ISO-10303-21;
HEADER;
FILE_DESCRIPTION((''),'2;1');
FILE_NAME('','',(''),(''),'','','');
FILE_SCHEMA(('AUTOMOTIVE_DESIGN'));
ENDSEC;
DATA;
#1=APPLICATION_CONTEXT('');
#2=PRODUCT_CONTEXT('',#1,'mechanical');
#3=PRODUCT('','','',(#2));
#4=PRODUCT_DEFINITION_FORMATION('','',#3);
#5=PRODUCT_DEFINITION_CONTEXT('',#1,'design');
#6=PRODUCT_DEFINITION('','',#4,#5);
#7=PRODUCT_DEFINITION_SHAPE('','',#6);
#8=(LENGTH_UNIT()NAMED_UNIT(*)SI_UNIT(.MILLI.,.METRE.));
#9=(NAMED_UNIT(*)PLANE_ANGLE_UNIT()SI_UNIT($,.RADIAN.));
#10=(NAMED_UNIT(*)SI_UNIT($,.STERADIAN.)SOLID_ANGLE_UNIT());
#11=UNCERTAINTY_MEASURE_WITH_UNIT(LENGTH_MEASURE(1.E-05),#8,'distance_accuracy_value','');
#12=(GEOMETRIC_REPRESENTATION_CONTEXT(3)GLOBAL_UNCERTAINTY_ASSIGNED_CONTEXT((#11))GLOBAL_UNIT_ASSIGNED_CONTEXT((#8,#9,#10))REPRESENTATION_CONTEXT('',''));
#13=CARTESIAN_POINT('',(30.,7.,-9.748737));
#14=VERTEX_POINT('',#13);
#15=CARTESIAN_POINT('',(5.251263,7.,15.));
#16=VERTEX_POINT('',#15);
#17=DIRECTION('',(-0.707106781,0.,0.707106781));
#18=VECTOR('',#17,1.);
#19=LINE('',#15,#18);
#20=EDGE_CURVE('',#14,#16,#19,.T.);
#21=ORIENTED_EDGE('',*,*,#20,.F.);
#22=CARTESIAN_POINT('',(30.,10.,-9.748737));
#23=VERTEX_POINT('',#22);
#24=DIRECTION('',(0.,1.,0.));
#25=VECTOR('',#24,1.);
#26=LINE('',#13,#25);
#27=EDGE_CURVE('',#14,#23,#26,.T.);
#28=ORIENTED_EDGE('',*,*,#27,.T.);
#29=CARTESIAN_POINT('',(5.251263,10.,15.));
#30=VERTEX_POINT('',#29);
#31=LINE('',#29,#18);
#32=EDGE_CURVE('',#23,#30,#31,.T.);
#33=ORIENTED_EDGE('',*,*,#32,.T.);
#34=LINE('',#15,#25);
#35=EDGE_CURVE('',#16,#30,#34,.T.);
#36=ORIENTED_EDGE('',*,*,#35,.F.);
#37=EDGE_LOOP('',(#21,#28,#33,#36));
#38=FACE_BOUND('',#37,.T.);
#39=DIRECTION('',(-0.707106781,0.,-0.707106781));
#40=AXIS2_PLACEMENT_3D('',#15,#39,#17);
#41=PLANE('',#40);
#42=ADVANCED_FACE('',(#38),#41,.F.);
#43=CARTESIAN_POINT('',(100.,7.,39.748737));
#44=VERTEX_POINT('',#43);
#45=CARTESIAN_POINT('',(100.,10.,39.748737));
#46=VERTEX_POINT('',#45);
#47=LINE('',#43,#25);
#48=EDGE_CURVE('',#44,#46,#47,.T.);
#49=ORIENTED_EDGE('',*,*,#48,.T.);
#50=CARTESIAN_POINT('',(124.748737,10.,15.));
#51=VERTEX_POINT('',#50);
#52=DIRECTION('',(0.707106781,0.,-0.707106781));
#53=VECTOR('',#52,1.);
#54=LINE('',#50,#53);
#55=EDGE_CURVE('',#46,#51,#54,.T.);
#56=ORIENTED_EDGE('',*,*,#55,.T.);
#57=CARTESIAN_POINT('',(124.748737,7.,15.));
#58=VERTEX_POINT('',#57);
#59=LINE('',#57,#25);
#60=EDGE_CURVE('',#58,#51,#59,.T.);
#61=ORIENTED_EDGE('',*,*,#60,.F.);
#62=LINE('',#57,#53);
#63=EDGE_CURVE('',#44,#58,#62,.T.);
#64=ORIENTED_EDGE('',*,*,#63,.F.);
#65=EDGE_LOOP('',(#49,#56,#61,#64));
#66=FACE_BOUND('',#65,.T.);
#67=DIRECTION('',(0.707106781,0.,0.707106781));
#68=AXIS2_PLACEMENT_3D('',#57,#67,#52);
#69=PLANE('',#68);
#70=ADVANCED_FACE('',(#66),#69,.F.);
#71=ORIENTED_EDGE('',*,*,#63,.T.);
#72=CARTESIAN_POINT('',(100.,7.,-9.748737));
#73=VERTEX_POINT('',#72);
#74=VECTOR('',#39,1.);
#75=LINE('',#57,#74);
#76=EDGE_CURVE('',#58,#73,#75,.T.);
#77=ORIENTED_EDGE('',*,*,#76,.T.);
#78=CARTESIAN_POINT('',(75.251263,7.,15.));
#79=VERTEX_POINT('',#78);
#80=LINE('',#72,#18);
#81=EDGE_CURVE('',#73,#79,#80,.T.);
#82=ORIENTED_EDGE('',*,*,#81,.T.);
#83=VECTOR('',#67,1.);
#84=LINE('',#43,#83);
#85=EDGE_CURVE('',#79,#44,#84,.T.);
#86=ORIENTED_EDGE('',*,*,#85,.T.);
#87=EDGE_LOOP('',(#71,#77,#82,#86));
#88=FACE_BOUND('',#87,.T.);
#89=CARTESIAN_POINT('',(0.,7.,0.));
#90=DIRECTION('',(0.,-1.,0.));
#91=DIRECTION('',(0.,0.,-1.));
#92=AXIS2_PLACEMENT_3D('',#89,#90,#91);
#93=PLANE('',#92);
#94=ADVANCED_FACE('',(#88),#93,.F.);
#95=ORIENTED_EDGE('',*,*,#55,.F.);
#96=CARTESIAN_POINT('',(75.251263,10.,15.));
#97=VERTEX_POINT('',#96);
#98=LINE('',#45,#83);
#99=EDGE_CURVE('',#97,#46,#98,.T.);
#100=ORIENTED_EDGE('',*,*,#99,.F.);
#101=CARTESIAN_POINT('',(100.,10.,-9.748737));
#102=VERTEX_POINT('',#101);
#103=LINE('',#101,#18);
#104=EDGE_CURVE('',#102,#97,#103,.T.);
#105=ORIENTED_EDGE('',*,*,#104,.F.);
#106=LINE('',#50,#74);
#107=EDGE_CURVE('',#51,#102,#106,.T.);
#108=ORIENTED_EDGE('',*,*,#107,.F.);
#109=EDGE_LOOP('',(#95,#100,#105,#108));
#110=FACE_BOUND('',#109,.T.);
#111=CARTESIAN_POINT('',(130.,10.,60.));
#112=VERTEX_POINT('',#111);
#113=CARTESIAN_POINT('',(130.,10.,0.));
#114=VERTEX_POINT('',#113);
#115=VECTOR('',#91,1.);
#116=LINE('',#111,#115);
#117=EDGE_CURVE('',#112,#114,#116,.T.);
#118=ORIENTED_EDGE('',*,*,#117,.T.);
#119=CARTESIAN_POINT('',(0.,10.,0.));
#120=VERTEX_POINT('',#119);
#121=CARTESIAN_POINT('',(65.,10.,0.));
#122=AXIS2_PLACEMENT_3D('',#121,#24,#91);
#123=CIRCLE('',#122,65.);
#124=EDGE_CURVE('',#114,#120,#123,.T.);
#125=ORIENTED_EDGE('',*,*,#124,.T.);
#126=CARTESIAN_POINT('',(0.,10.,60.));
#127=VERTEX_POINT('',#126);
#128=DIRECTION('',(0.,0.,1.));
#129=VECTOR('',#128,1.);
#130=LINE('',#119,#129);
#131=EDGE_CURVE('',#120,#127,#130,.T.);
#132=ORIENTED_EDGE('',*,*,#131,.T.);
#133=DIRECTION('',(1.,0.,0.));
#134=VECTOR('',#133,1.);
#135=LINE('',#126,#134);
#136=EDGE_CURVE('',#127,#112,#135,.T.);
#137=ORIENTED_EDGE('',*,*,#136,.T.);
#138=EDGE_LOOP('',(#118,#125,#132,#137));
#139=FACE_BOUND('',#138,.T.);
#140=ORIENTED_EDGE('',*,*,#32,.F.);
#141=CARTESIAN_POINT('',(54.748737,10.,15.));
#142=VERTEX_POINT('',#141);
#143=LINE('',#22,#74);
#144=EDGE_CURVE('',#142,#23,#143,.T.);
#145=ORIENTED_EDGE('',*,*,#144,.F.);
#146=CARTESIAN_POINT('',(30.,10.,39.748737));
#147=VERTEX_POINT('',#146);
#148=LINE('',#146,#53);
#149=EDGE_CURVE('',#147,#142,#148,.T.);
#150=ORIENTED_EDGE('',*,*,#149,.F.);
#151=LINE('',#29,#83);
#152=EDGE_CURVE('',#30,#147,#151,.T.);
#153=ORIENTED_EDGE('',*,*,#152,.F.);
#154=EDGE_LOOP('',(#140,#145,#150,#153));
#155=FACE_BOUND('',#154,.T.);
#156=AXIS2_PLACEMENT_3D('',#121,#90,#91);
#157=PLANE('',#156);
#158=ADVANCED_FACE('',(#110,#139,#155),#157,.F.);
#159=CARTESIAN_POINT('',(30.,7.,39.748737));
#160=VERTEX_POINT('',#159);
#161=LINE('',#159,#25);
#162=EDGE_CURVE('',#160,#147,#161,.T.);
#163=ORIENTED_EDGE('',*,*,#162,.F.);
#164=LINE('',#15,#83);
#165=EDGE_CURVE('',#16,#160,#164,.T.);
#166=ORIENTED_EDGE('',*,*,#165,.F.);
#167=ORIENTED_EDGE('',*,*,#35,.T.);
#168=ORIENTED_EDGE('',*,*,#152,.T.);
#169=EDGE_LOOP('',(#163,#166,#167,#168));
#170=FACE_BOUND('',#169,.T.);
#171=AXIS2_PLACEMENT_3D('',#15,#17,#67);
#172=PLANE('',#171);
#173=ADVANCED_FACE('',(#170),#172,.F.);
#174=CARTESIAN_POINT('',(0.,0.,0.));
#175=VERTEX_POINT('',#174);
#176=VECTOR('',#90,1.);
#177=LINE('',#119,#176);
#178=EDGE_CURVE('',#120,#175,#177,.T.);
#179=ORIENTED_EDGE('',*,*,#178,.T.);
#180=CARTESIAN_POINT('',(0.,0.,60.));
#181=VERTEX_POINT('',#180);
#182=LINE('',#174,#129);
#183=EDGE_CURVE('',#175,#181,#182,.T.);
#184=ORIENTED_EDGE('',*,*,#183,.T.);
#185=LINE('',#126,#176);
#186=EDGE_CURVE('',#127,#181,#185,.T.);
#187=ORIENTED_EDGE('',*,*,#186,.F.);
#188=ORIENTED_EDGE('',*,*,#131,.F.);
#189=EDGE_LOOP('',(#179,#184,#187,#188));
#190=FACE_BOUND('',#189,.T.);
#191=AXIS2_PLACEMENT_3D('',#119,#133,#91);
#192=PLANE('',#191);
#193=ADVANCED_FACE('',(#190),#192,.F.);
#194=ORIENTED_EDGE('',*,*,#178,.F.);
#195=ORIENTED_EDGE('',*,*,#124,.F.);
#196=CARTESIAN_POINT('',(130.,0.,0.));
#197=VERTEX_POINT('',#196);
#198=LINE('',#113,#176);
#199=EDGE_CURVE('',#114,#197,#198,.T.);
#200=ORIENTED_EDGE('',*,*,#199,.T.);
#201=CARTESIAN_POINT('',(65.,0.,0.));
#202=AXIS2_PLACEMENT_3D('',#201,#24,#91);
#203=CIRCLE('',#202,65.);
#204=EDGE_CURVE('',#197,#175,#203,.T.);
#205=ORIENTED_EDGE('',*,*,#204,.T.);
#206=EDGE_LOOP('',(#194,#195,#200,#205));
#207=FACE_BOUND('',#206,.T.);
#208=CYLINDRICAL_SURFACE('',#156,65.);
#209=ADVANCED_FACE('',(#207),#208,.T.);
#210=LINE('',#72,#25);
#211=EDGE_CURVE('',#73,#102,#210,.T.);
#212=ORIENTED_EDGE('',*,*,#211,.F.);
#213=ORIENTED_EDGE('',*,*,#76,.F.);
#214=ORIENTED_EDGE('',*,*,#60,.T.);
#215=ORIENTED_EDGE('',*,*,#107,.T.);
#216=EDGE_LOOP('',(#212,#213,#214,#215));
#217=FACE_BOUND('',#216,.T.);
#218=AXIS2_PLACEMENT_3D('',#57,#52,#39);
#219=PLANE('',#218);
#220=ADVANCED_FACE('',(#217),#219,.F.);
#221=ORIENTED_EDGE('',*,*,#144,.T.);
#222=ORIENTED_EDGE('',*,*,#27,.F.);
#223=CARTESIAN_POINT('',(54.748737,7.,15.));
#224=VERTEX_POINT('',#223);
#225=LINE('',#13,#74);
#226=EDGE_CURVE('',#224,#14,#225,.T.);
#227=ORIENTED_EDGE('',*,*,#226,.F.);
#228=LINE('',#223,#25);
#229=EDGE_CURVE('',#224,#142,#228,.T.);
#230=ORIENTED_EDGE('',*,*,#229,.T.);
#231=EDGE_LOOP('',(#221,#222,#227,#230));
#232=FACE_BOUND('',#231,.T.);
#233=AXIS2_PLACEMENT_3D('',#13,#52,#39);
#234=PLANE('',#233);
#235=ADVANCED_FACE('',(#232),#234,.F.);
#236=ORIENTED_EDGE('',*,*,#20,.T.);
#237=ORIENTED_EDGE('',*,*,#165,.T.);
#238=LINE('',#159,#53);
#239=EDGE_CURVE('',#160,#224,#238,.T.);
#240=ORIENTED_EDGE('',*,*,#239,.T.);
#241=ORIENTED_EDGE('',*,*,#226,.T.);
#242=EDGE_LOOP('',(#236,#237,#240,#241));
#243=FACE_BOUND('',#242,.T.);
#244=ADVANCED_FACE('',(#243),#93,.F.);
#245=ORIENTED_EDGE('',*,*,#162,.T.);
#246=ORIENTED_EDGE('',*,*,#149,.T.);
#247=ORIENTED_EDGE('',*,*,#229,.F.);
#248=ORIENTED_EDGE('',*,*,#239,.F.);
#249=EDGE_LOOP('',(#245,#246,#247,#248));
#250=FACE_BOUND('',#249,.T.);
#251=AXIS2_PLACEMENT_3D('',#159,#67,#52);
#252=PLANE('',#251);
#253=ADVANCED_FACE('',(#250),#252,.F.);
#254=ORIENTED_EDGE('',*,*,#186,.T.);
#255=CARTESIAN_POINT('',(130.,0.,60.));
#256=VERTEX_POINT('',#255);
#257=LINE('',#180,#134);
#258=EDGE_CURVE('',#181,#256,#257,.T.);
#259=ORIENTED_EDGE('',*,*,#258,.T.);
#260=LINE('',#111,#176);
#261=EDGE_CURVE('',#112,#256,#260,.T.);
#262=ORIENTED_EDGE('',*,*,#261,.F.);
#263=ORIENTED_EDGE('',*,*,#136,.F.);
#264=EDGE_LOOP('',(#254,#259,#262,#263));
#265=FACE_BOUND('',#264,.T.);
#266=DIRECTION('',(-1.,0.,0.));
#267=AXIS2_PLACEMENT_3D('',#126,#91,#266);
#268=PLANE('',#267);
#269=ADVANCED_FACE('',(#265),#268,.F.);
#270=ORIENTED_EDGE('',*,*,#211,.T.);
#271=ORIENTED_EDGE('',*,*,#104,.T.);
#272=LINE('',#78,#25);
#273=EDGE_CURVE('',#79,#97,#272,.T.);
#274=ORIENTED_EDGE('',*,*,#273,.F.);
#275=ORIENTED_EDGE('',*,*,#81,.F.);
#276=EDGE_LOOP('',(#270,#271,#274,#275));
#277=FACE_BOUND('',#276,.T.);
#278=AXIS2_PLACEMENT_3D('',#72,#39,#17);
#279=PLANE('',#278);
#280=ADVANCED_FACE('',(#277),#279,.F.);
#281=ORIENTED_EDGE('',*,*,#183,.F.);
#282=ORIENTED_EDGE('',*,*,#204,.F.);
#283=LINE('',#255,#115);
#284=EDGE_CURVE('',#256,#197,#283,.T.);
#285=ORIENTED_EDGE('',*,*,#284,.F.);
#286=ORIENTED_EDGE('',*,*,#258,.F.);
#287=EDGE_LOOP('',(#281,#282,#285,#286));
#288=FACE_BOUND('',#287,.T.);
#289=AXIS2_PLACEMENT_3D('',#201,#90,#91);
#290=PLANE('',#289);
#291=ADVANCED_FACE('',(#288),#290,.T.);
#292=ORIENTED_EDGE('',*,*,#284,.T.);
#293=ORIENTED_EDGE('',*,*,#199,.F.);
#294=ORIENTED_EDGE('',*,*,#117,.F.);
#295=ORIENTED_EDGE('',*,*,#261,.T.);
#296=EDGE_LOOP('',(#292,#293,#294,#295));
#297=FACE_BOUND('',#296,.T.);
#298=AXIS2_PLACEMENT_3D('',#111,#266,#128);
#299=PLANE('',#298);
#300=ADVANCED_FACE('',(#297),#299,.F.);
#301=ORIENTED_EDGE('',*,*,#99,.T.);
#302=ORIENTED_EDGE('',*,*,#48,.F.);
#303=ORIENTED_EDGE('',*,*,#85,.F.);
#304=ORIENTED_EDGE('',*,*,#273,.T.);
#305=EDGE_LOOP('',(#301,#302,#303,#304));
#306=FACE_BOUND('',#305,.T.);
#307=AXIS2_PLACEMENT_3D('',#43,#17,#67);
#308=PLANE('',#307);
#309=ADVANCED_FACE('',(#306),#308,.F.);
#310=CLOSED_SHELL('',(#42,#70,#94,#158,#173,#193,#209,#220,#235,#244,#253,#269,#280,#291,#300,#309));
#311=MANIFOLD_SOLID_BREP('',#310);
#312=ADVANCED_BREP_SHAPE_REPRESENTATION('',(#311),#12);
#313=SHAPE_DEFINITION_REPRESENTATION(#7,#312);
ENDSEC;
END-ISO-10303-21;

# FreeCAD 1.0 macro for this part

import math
import FreeCAD as App
import Part
import Sketcher
Q = App.Units.Quantity

doc = App.newDocument("Part")
body = doc.addObject("PartDesign::Body", "Body")

# Sketch on XZ plane
sketch1 = body.newObject("Sketcher::SketchObject", "Sketch")
sketch1.AttachmentSupport = (doc.getObject("XZ_Plane"), [""])
sketch1.MapMode = "FlatFace"
sketch1.addGeometry([
    Part.LineSegment(App.Vector(0, 0, 0), App.Vector(0, 60, 0)),
    Part.LineSegment(App.Vector(0, 60, 0), App.Vector(130, 60, 0)),
    Part.LineSegment(App.Vector(130, 60, 0), App.Vector(130, 0, 0)),
    Part.ArcOfCircle(Part.Circle(App.Vector(65, 0, 0), App.Vector(0, 0, 1), 65), math.radians(180), math.radians(360)),
], False)
sketch1.addConstraint([
    Sketcher.Constraint("Coincident", 0, 2, 1, 1),
    Sketcher.Constraint("Coincident", 1, 2, 2, 1),
    Sketcher.Constraint("Tangent", 2, 2, 3, 2),
    Sketcher.Constraint("Tangent", 3, 1, 0, 1),
    Sketcher.Constraint("Vertical", 0),
    Sketcher.Constraint("Horizontal", 1),
    Sketcher.Constraint("Vertical", 2),
    Sketcher.Constraint("Coincident", 3, 1, -1, 1),
    Sketcher.Constraint("Radius", 3, Q("65 mm")),
    Sketcher.Constraint("DistanceY", 0, 1, 0, 2, Q("60 mm")),
])
pad1 = body.newObject("PartDesign::Pad", "Pad")
pad1.Profile = sketch1
pad1.Length = 10
pad1.Reversed = True

# Sketch on XZ plane
sketch2 = body.newObject("Sketcher::SketchObject", "Sketch001")
sketch2.AttachmentSupport = (doc.getObject("XZ_Plane"), [""])
sketch2.MapMode = "FlatFace"
sketch2.AttachmentOffset = App.Placement(App.Vector(0, 0, -10), App.Rotation())
sketch2.addGeometry([
    Part.LineSegment(App.Vector(5.251263, 15, 0), App.Vector(30, 39.748737, 0)),  # 0
    Part.LineSegment(App.Vector(30, 39.748737, 0), App.Vector(54.748737, 15, 0)),  # 1
    Part.LineSegment(App.Vector(54.748737, 15, 0), App.Vector(30, -9.748737, 0)),  # 2
    Part.LineSegment(App.Vector(30, -9.748737, 0), App.Vector(5.251263, 15, 0)),  # 3
    Part.LineSegment(App.Vector(100, -9.748737, 0), App.Vector(75.251263, 15, 0)),  # 4
    Part.LineSegment(App.Vector(75.251263, 15, 0), App.Vector(100, 39.748737, 0)),  # 5
    Part.LineSegment(App.Vector(100, 39.748737, 0), App.Vector(124.748737, 15, 0)),  # 6
    Part.LineSegment(App.Vector(124.748737, 15, 0), App.Vector(100, -9.748737, 0)),  # 7
], False)
sketch2.addConstraint([
    Sketcher.Constraint("Coincident", 0, 2, 1, 1),
    Sketcher.Constraint("Coincident", 1, 2, 2, 1),
    Sketcher.Constraint("Coincident", 2, 2, 3, 1),
    Sketcher.Constraint("Coincident", 3, 2, 0, 1),
    Sketcher.Constraint("Coincident", 4, 2, 5, 1),
    Sketcher.Constraint("Coincident", 5, 2, 6, 1),
    Sketcher.Constraint("Coincident", 6, 2, 7, 1),
    Sketcher.Constraint("Coincident", 7, 2, 4, 1),
    Sketcher.Constraint("Perpendicular", 0, 1),
    Sketcher.Constraint("Perpendicular", 1, 2),
    Sketcher.Constraint("Perpendicular", 2, 3),
    Sketcher.Constraint("Parallel", 3, 4),
    Sketcher.Constraint("Perpendicular", 4, 5),
    Sketcher.Constraint("Perpendicular", 5, 6),
    Sketcher.Constraint("Perpendicular", 6, 7),
    Sketcher.Constraint("Horizontal", 1, 2, 3, 2),
    Sketcher.Constraint("Horizontal", 3, 2, 4, 2),
    Sketcher.Constraint("Horizontal", 0, 2, 5, 2),
    Sketcher.Constraint("Horizontal", 4, 2, 6, 2),
    Sketcher.Constraint("Vertical", 0, 2, 2, 2),
    Sketcher.Constraint("Distance", 0, Q("35 mm")),
    Sketcher.Constraint("DistanceX", -1, 1, 0, 2, Q("30 mm")),
    Sketcher.Constraint("DistanceY", -1, 1, 1, 2, Q("15 mm")),
    Sketcher.Constraint("DistanceX", -1, 1, 5, 2, Q("100 mm")),
])
pocket1 = body.newObject("PartDesign::Pocket", "Pocket")
pocket1.Profile = sketch2
pocket1.Length = 3
pocket1.Reversed = True

doc.recompute()
